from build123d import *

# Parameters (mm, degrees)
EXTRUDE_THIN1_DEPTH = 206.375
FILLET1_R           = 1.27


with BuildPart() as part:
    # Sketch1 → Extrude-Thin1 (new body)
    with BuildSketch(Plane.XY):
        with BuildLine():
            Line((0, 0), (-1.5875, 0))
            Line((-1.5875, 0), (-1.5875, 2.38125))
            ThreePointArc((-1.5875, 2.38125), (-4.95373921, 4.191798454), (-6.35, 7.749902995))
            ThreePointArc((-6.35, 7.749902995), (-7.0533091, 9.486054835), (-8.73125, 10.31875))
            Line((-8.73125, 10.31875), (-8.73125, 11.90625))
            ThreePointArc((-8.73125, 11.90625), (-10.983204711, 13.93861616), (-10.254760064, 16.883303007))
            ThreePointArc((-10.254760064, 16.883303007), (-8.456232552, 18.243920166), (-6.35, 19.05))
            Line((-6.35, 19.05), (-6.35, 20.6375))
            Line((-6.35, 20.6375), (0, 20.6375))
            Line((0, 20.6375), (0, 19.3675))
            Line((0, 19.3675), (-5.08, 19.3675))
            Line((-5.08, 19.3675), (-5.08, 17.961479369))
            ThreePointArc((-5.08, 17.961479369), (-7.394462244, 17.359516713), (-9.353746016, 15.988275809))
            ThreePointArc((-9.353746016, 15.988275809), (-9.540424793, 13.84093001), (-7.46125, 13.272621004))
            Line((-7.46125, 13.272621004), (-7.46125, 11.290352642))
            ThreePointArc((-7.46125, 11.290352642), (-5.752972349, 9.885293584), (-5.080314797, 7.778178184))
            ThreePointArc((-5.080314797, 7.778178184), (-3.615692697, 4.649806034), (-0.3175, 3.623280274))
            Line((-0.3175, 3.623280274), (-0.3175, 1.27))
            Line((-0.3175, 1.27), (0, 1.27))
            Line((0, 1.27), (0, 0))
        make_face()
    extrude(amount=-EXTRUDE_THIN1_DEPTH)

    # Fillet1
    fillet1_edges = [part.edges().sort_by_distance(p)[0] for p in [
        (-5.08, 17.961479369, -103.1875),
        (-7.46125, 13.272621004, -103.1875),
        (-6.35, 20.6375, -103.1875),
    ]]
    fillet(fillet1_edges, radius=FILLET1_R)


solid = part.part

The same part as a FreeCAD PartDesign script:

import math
import FreeCAD as App
import Part
import Sketcher

V = App.Vector
Q = App.Units.Quantity


def edges_at(feature, points):
    """Names of the edges that pass closest to the given points."""
    edges = feature.Shape.Edges
    near = lambda p: min(range(len(edges)), key=lambda i: edges[i].distToShape(Part.Vertex(*p))[0])
    return sorted({f"Edge{near(p) + 1}" for p in points})

doc = App.newDocument("Part")
body = doc.addObject("PartDesign::Body", "Body")

# Sketch on XY plane
sketch1 = body.newObject("Sketcher::SketchObject", "Sketch")
sketch1.AttachmentSupport = (doc.getObject("XY_Plane"), [""])
sketch1.MapMode = "FlatFace"
sketch1.addGeometry([
    Part.LineSegment(V(-1.59, 0, 0), V(0, 0, 0)),  # 0
    Part.LineSegment(V(0, 0, 0), V(0, 1.27, 0)),  # 1
    Part.LineSegment(V(0, 1.27, 0), V(-0.32, 1.27, 0)),  # 2
    Part.LineSegment(V(-0.32, 1.27, 0), V(-0.32, 3.62, 0)),  # 3
    Part.ArcOfCircle(Part.Circle(V(-0.8, 7.87, 0), V(0, 0, 1), 4.28), math.radians(-179), math.radians(-83)),  # 4
    Part.ArcOfCircle(Part.Circle(V(-8.99, 7.69, 0), V(0, 0, 1), 3.91), math.radians(1), math.radians(67)),  # 5
    Part.LineSegment(V(-7.46, 11.29, 0), V(-7.46, 13.27, 0)),  # 6
    Part.ArcOfCircle(Part.Circle(V(-8.16, 14.8, 0), V(0, 0, 1), 1.68), math.radians(135), math.radians(295)),  # 7
    Part.ArcOfCircle(Part.Circle(V(-4.57, 11.23, 0), V(0, 0, 1), 6.75), math.radians(94), math.radians(135)),  # 8
    Part.LineSegment(V(-5.08, 17.96, 0), V(-5.08, 19.37, 0)),  # 9
    Part.LineSegment(V(-5.08, 19.37, 0), V(0, 19.37, 0)),  # 10
    Part.LineSegment(V(0, 19.37, 0), V(0, 20.64, 0)),  # 11
    Part.LineSegment(V(0, 20.64, 0), V(-6.35, 20.64, 0)),  # 12
    Part.LineSegment(V(-6.35, 20.64, 0), V(-6.35, 19.05, 0)),  # 13
    Part.ArcOfCircle(Part.Circle(V(-4.57, 11.23, 0), V(0, 0, 1), 8.02), math.radians(103), math.radians(135)),  # 14
    Part.ArcOfCircle(Part.Circle(V(-8.16, 14.8, 0), V(0, 0, 1), 2.95), math.radians(135), math.radians(259)),  # 15
    Part.LineSegment(V(-8.73, 11.91, 0), V(-8.73, 10.32, 0)),  # 16
    Part.ArcOfCircle(Part.Circle(V(-8.99, 7.69, 0), V(0, 0, 1), 2.64), math.radians(1), math.radians(84)),  # 17
    Part.ArcOfCircle(Part.Circle(V(-0.8, 7.87, 0), V(0, 0, 1), 5.55), math.radians(-179), math.radians(-98)),  # 18
    Part.LineSegment(V(-1.59, 2.38, 0), V(-1.59, 0, 0)),  # 19
], False)
sketch1.addConstraint([
    Sketcher.Constraint("Coincident", 0, 2, 1, 1),
    Sketcher.Constraint("Coincident", 1, 2, 2, 1),
    Sketcher.Constraint("Coincident", 2, 2, 3, 1),
    Sketcher.Constraint("Coincident", 3, 2, 4, 2),
    Sketcher.Constraint("Tangent", 4, 1, 5, 1),
    Sketcher.Constraint("Coincident", 5, 2, 6, 1),
    Sketcher.Constraint("Coincident", 6, 2, 7, 2),
    Sketcher.Constraint("Tangent", 7, 1, 8, 2),
    Sketcher.Constraint("Coincident", 8, 1, 9, 1),
    Sketcher.Constraint("Coincident", 9, 2, 10, 1),
    Sketcher.Constraint("Coincident", 10, 2, 11, 1),
    Sketcher.Constraint("Coincident", 11, 2, 12, 1),
    Sketcher.Constraint("Coincident", 12, 2, 13, 1),
    Sketcher.Constraint("Coincident", 13, 2, 14, 1),
    Sketcher.Constraint("Tangent", 14, 2, 15, 1),
    Sketcher.Constraint("Coincident", 15, 2, 16, 1),
    Sketcher.Constraint("Coincident", 16, 2, 17, 2),
    Sketcher.Constraint("Tangent", 17, 1, 18, 1),
    Sketcher.Constraint("Coincident", 18, 2, 19, 1),
    Sketcher.Constraint("Coincident", 19, 2, 0, 1),
    Sketcher.Constraint("Horizontal", 0),
    Sketcher.Constraint("Vertical", 1),
    Sketcher.Constraint("Horizontal", 2),
    Sketcher.Constraint("Vertical", 3),
    Sketcher.Constraint("Vertical", 6),
    Sketcher.Constraint("Vertical", 9),
    Sketcher.Constraint("Horizontal", 10),
    Sketcher.Constraint("Vertical", 11),
    Sketcher.Constraint("Horizontal", 12),
    Sketcher.Constraint("Vertical", 13),
    Sketcher.Constraint("Vertical", 16),
    Sketcher.Constraint("Vertical", 19),
    Sketcher.Constraint("Coincident", 0, 2, -1, 1),
    Sketcher.Constraint("Coincident", 14, 3, 8, 3),
    Sketcher.Constraint("Coincident", 15, 3, 7, 3),
    Sketcher.Constraint("Coincident", 17, 3, 5, 3),
    Sketcher.Constraint("Coincident", 18, 3, 4, 3),
    Sketcher.Constraint("PointOnObject", 10, 2, -2),
    Sketcher.Constraint("Vertical", 13, 2, 17, 1),
    Sketcher.Constraint("Equal", 1, 11),
    Sketcher.Constraint("Equal", 0, 13),
    Sketcher.Constraint("Equal", 13, 16),
    Sketcher.Constraint("DistanceX", 10, 1, 10, 2, Q("0.2 in")),
    Sketcher.Constraint("DistanceX", 12, 2, 12, 1, Q("0.25 in")),
    Sketcher.Constraint("DistanceY", 1, 1, 1, 2, Q("0.05 in")),
    Sketcher.Constraint("DistanceX", 0, 1, 0, 2, Q("0.0625 in")),
    Sketcher.Constraint("DistanceY", 19, 2, 19, 1, Q("0.09375 in")),
    Sketcher.Constraint("DistanceY", -1, 1, 13, 2, Q("0.75 in")),
    Sketcher.Constraint("DistanceX", 15, 2, 5, 2, Q("0.05 in")),
    Sketcher.Constraint("DistanceX", 18, 2, 2, 2, Q("0.05 in")),
    Sketcher.Constraint("DistanceX", 15, 2, -1, 1, Q("0.34375 in")),
    Sketcher.Constraint("DistanceY", -1, 1, 15, 2, Q("0.46875 in")),
    Sketcher.Constraint("Radius", 4, Q("4.27784 mm")),
    Sketcher.Constraint("Radius", 18, Q("5.54784 mm")),
    Sketcher.Constraint("DistanceY", -1, 1, 5, 3, Q("0.3028 in")),
    Sketcher.Constraint("Radius", 7, Q("1.682225 mm")),
    Sketcher.Constraint("Radius", 8, Q("6.749677 mm")),
    Sketcher.Constraint("Radius", 14, Q("8.019677 mm")),
    Sketcher.Constraint("DistanceY", 6, 1, 6, 2, Q("1.982268 mm")),
])
pad1 = body.newObject("PartDesign::Pad", "Pad")
pad1.Profile = sketch1
pad1.Length = Q("8.125 in")
pad1.Reversed = True
doc.recompute()

fillet = body.newObject("PartDesign::Fillet", "Fillet")
fillet.Base = (pad1, edges_at(pad1, [(-5.08, 17.961, -103.188), (-7.461, 13.273, -103.188), (-6.35, 20.637, -103.188)]))
fillet.Radius = Q("0.05 in")

doc.recompute()
